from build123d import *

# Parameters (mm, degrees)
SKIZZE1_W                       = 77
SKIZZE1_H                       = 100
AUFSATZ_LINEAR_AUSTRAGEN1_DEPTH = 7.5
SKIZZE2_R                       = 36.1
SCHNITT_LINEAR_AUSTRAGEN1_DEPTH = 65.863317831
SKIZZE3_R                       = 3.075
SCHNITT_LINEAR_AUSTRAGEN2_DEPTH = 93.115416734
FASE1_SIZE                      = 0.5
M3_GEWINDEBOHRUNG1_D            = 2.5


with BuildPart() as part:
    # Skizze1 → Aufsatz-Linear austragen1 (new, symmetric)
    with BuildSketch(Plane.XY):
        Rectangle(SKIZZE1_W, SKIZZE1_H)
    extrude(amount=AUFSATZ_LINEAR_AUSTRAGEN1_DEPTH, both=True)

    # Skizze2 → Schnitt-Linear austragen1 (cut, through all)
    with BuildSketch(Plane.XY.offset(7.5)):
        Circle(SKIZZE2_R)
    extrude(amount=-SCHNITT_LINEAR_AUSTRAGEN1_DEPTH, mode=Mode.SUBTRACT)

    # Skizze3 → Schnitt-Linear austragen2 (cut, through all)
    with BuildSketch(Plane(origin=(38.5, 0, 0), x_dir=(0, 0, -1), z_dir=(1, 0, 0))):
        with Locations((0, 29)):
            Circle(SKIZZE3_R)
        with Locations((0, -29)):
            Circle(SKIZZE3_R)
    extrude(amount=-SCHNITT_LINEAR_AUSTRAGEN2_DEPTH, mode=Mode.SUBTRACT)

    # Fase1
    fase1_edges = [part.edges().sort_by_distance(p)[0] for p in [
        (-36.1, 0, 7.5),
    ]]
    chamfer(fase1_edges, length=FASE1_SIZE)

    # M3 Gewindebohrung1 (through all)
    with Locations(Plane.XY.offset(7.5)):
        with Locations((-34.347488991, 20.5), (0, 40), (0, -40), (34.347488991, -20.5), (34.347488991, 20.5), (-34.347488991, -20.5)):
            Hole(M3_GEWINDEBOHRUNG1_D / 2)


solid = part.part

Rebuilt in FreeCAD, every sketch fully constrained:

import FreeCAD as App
import Part
import Sketcher
from FreeCAD import Vector
Q = App.Units.Quantity


def edges_at(feature, points):
    """Names of the edges that pass closest to the given points."""
    edges = feature.Shape.Edges
    near = lambda p: min(range(len(edges)), key=lambda i: edges[i].distToShape(Part.Vertex(*p))[0])
    return sorted({f"Edge{near(p) + 1}" for p in points})


def add_polygon(sketch, points):
    """Adds a closed chain of lines whose ends are joined by coincident constraints."""
    first, n = sketch.GeometryCount, len(points)
    for a, b in zip(points, points[1:] + points[:1]):
        sketch.addGeometry(Part.LineSegment(App.Vector(*a, 0), App.Vector(*b, 0)), False)
    for i in range(n):
        sketch.addConstraint(Sketcher.Constraint("Coincident", first + i, 2, first + (i + 1) % n, 1))

doc = App.newDocument("Part")
body = doc.addObject("PartDesign::Body", "Body")

# Sketch on XY plane
sketch1 = body.newObject("Sketcher::SketchObject", "Sketch")
sketch1.AttachmentSupport = (doc.getObject("XY_Plane"), [""])
sketch1.MapMode = "FlatFace"
add_polygon(sketch1, [(-38, 50), (-38, -50), (38, -50), (38, 50)])  # lines 0-3
sketch1.addConstraint([
    Sketcher.Constraint("Vertical", 0),
    Sketcher.Constraint("Horizontal", 1),
    Sketcher.Constraint("Vertical", 2),
    Sketcher.Constraint("Horizontal", 3),
    Sketcher.Constraint("Symmetric", 0, 2, 2, 2, -1, 1),
    Sketcher.Constraint("DistanceX", 1, 1, 1, 2, Q("77 mm")),
    Sketcher.Constraint("DistanceY", 0, 2, 0, 1, Q("100 mm")),
])
pad1 = body.newObject("PartDesign::Pad", "Pad")
pad1.Profile = sketch1
pad1.Length = 15
pad1.Midplane = True

# Sketch on XY plane
sketch2 = body.newObject("Sketcher::SketchObject", "Sketch001")
sketch2.AttachmentSupport = (doc.getObject("XY_Plane"), [""])
sketch2.MapMode = "FlatFace"
sketch2.AttachmentOffset = App.Placement(Vector(0, 0, 7.5), App.Rotation())
sketch2.addGeometry(Part.Circle(Vector(0, 0, 0), Vector(0, 0, 1), 36), False)
sketch2.addConstraint([
    Sketcher.Constraint("Coincident", 0, 3, -1, 1),
    Sketcher.Constraint("Diameter", 0, Q("72.2 mm")),
])
pocket1 = body.newObject("PartDesign::Pocket", "Pocket")
pocket1.Profile = sketch2
pocket1.Type = "ThroughAll"

# Sketch on YZ plane
sketch3 = body.newObject("Sketcher::SketchObject", "Sketch002")
sketch3.AttachmentSupport = (doc.getObject("YZ_Plane"), [""])
sketch3.MapMode = "FlatFace"
sketch3.AttachmentOffset = App.Placement(Vector(0, 0, 38.5), App.Rotation())
sketch3.addGeometry([
    Part.Circle(Vector(29, 0, 0), Vector(0, 0, 1), 3.1),
    Part.Circle(Vector(-29, 0, 0), Vector(0, 0, 1), 3.1),
], False)
sketch3.addConstraint([
    Sketcher.Constraint("Equal", 0, 1),
    Sketcher.Constraint("Symmetric", 0, 3, 1, 3, -1, 1),
    Sketcher.Constraint("PointOnObject", 0, 3, -1),
    Sketcher.Constraint("Diameter", 0, Q("6.15 mm")),
    Sketcher.Constraint("DistanceX", -1, 1, 0, 3, Q("29 mm")),
])
pocket2 = body.newObject("PartDesign::Pocket", "Pocket001")
pocket2.Profile = sketch3
pocket2.Type = "ThroughAll"
doc.recompute()

chamfer = body.newObject("PartDesign::Chamfer", "Chamfer")
chamfer.Base = (pocket2, edges_at(pocket2, [(-36.1, 0, 7.5)]))
chamfer.Size = 0.5

# Sketch on XY plane
sketch4 = body.newObject("Sketcher::SketchObject", "Sketch003")
sketch4.AttachmentSupport = (doc.getObject("XY_Plane"), [""])
sketch4.MapMode = "FlatFace"
sketch4.AttachmentOffset = App.Placement(Vector(0, 0, 7.5), App.Rotation())
sketch4.addGeometry([
    Part.Circle(Vector(-34.3, 20.5, 0), Vector(0, 0, 1), 1.2),  # 0
    Part.Circle(Vector(0, 40, 0), Vector(0, 0, 1), 1.2),  # 1
    Part.Circle(Vector(0, -40, 0), Vector(0, 0, 1), 1.2),  # 2
    Part.Circle(Vector(34.3, -20.5, 0), Vector(0, 0, 1), 1.2),  # 3
    Part.Circle(Vector(34.3, 20.5, 0), Vector(0, 0, 1), 1.2),  # 4
    Part.Circle(Vector(-34.3, -20.5, 0), Vector(0, 0, 1), 1.2),  # 5
], False)
sketch4.addConstraint([
    Sketcher.Constraint("Equal", 0, 1),
    Sketcher.Constraint("Equal", 1, 2),
    Sketcher.Constraint("Equal", 2, 3),
    Sketcher.Constraint("Equal", 3, 4),
    Sketcher.Constraint("Equal", 4, 5),
    Sketcher.Constraint("Symmetric", 1, 3, 2, 3, -1, 1),
    Sketcher.Constraint("Symmetric", 0, 3, 3, 3, -1, 1),
    Sketcher.Constraint("Symmetric", 4, 3, 5, 3, -1, 1),
    Sketcher.Constraint("Symmetric", 0, 3, 4, 3, -2),
    Sketcher.Constraint("PointOnObject", 1, 3, -2),
    Sketcher.Constraint("Diameter", 0, Q("2.5 mm")),
    Sketcher.Constraint("DistanceY", -1, 1, 1, 3, Q("40 mm")),
    Sketcher.Constraint("DistanceY", 3, 3, 0, 3, Q("41 mm")),
    Sketcher.Constraint("DistanceX", 0, 3, -1, 1, Q("34.347489 mm")),
])
doc.recompute()
hole = body.newObject("PartDesign::Hole", "Hole")
hole.Profile = sketch4
hole.ThreadType = "None"
hole.Diameter = 2.5
hole.DepthType = "ThroughAll"

doc.recompute()
